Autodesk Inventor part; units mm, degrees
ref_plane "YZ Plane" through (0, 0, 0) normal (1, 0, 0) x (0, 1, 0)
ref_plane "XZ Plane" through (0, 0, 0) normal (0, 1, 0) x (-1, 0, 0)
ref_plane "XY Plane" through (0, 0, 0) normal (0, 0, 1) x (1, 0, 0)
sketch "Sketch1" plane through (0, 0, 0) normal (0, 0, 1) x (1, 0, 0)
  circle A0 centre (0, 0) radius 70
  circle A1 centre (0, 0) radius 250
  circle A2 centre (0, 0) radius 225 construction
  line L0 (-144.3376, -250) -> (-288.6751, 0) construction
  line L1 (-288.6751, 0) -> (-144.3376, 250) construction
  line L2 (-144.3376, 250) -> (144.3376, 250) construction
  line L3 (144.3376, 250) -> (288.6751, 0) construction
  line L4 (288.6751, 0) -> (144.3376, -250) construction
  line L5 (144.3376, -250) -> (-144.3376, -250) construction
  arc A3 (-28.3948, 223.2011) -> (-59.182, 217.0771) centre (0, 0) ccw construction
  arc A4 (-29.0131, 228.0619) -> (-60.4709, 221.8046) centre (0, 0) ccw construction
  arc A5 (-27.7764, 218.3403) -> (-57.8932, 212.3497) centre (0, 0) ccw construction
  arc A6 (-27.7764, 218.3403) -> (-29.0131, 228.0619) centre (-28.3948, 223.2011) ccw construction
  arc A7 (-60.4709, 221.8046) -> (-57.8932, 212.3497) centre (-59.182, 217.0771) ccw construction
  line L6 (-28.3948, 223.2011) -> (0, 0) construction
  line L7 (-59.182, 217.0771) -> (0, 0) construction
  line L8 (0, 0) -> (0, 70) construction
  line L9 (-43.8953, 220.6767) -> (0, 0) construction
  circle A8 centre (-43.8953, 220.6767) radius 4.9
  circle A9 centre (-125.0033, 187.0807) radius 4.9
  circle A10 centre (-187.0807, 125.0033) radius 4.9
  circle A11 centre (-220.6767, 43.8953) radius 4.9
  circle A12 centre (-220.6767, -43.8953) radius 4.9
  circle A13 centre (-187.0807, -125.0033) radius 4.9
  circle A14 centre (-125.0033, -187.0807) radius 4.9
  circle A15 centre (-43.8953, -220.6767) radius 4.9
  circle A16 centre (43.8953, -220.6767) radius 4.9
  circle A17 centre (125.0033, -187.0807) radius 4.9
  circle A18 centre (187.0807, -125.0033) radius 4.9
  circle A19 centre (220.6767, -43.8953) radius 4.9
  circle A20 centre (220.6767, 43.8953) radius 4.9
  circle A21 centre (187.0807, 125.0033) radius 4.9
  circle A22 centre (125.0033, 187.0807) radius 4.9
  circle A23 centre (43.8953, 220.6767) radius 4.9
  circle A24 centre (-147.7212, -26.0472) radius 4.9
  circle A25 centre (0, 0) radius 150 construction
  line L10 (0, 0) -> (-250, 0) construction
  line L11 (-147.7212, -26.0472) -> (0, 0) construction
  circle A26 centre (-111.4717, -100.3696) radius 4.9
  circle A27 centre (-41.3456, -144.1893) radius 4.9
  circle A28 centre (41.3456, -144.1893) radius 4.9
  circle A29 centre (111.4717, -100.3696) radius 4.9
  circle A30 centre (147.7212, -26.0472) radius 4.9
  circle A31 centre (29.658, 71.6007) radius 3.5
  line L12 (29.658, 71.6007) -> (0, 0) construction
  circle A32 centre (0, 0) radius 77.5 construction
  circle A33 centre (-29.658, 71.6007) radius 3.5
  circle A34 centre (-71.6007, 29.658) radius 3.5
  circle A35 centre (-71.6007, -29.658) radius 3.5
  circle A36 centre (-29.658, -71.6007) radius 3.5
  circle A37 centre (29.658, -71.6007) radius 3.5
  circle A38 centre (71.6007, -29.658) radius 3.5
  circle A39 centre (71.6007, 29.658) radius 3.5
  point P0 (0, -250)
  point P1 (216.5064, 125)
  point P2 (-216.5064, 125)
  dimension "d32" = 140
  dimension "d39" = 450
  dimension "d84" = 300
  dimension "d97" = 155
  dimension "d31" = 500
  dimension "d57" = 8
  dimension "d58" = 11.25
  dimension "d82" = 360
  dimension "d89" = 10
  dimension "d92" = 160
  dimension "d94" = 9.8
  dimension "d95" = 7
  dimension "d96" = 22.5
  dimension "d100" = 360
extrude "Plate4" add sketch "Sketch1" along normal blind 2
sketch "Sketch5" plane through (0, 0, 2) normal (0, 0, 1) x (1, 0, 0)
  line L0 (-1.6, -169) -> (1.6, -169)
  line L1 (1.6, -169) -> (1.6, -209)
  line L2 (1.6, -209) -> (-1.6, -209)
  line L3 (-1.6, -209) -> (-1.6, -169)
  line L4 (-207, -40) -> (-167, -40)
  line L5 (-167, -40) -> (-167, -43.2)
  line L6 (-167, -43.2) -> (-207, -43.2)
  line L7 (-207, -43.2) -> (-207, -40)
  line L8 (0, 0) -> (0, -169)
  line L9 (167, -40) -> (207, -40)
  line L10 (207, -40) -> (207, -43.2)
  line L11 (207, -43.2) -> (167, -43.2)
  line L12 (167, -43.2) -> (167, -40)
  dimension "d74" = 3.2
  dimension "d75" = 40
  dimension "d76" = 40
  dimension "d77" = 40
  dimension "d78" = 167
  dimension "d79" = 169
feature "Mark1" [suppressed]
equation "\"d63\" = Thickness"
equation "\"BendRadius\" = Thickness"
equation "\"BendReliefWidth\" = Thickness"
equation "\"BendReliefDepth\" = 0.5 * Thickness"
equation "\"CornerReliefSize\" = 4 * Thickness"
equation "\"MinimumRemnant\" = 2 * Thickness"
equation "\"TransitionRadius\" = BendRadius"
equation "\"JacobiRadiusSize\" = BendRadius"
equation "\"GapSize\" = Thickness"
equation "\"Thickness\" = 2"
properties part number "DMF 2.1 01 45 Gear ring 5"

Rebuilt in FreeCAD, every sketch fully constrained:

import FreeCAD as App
import Part
import Sketcher
from FreeCAD import Vector

doc = App.newDocument("Part")
body = doc.addObject("PartDesign::Body", "Body")

sketch1 = doc.addObject("Sketcher::SketchObject", "Sketch")
body.addObject(sketch1)
sketch1.AttachmentSupport = (doc.XY_Plane, [""])
sketch1.MapMode = "FlatFace"
sketch1.addGeometry(Part.Circle(Vector(0, 0, 0), Vector(0, 0, 1), 250), False)
sketch1.addGeometry(Part.Circle(Vector(-125, -187.1, 0), Vector(0, 0, 1), 4.9), False)
sketch1.addGeometry(Part.Circle(Vector(-187.1, -125, 0), Vector(0, 0, 1), 4.9), False)
sketch1.addGeometry(Part.Circle(Vector(-43.9, -220.7, 0), Vector(0, 0, 1), 4.9), False)
sketch1.addGeometry(Part.Circle(Vector(-41.3, -144.2, 0), Vector(0, 0, 1), 4.9), False)
sketch1.addGeometry(Part.Circle(Vector(-220.7, -43.9, 0), Vector(0, 0, 1), 4.9), False)
sketch1.addGeometry(Part.Circle(Vector(-147.7, -26, 0), Vector(0, 0, 1), 4.9), False)
sketch1.addGeometry(Part.Circle(Vector(-111.5, -100.4, 0), Vector(0, 0, 1), 4.9), False)
sketch1.addGeometry(Part.Circle(Vector(-29.7, -71.6, 0), Vector(0, 0, 1), 3.5), False)
sketch1.addGeometry(Part.Circle(Vector(-71.6, -29.7, 0), Vector(0, 0, 1), 3.5), False)
sketch1.addGeometry(Part.Circle(Vector(43.9, -220.7, 0), Vector(0, 0, 1), 4.9), False)
sketch1.addGeometry(Part.Circle(Vector(41.3, -144.2, 0), Vector(0, 0, 1), 4.9), False)
sketch1.addGeometry(Part.Circle(Vector(125, -187.1, 0), Vector(0, 0, 1), 4.9), False)
sketch1.addGeometry(Part.Circle(Vector(187.1, -125, 0), Vector(0, 0, 1), 4.9), False)
sketch1.addGeometry(Part.Circle(Vector(29.7, -71.6, 0), Vector(0, 0, 1), 3.5), False)
sketch1.addGeometry(Part.Circle(Vector(111.5, -100.4, 0), Vector(0, 0, 1), 4.9), False)
sketch1.addGeometry(Part.Circle(Vector(71.6, -29.7, 0), Vector(0, 0, 1), 3.5), False)
sketch1.addGeometry(Part.Circle(Vector(147.7, -26, 0), Vector(0, 0, 1), 4.9), False)
sketch1.addGeometry(Part.Circle(Vector(220.7, -43.9, 0), Vector(0, 0, 1), 4.9), False)
sketch1.addGeometry(Part.Circle(Vector(-220.7, 43.9, 0), Vector(0, 0, 1), 4.9), False)
sketch1.addGeometry(Part.Circle(Vector(-71.6, 29.7, 0), Vector(0, 0, 1), 3.5), False)
sketch1.addGeometry(Part.Circle(Vector(-29.7, 71.6, 0), Vector(0, 0, 1), 3.5), False)
sketch1.addGeometry(Part.Circle(Vector(-187.1, 125, 0), Vector(0, 0, 1), 4.9), False)
sketch1.addGeometry(Part.Circle(Vector(-125, 187.1, 0), Vector(0, 0, 1), 4.9), False)
sketch1.addGeometry(Part.Circle(Vector(-43.9, 220.7, 0), Vector(0, 0, 1), 4.9), False)
sketch1.addGeometry(Part.Circle(Vector(0, 0, 0), Vector(0, 0, 1), 70), False)
sketch1.addGeometry(Part.Circle(Vector(71.6, 29.7, 0), Vector(0, 0, 1), 3.5), False)
sketch1.addGeometry(Part.Circle(Vector(29.7, 71.6, 0), Vector(0, 0, 1), 3.5), False)
sketch1.addGeometry(Part.Circle(Vector(220.7, 43.9, 0), Vector(0, 0, 1), 4.9), False)
sketch1.addGeometry(Part.Circle(Vector(43.9, 220.7, 0), Vector(0, 0, 1), 4.9), False)
sketch1.addGeometry(Part.Circle(Vector(187.1, 125, 0), Vector(0, 0, 1), 4.9), False)
sketch1.addGeometry(Part.Circle(Vector(125, 187.1, 0), Vector(0, 0, 1), 4.9), False)
sketch1.addConstraint(Sketcher.Constraint("Coincident", 0, 3, -1, 1))
sketch1.addConstraint(Sketcher.Constraint("Coincident", 25, 3, -1, 1))
sketch1.addConstraint(Sketcher.Constraint("Equal", 1, 2))
sketch1.addConstraint(Sketcher.Constraint("Equal", 2, 3))
sketch1.addConstraint(Sketcher.Constraint("Equal", 3, 4))
sketch1.addConstraint(Sketcher.Constraint("Equal", 4, 5))
sketch1.addConstraint(Sketcher.Constraint("Equal", 5, 6))
sketch1.addConstraint(Sketcher.Constraint("Equal", 6, 7))
sketch1.addConstraint(Sketcher.Constraint("Equal", 8, 9))
sketch1.addConstraint(Sketcher.Constraint("Equal", 7, 10))
sketch1.addConstraint(Sketcher.Constraint("Equal", 10, 11))
sketch1.addConstraint(Sketcher.Constraint("Equal", 11, 12))
sketch1.addConstraint(Sketcher.Constraint("Equal", 12, 13))
sketch1.addConstraint(Sketcher.Constraint("Equal", 9, 14))
sketch1.addConstraint(Sketcher.Constraint("Equal", 13, 15))
sketch1.addConstraint(Sketcher.Constraint("Equal", 14, 16))
sketch1.addConstraint(Sketcher.Constraint("Equal", 15, 17))
sketch1.addConstraint(Sketcher.Constraint("Equal", 17, 18))
sketch1.addConstraint(Sketcher.Constraint("Equal", 18, 19))
sketch1.addConstraint(Sketcher.Constraint("Equal", 16, 20))
sketch1.addConstraint(Sketcher.Constraint("Equal", 20, 21))
sketch1.addConstraint(Sketcher.Constraint("Equal", 19, 22))
sketch1.addConstraint(Sketcher.Constraint("Equal", 22, 23))
sketch1.addConstraint(Sketcher.Constraint("Equal", 23, 24))
sketch1.addConstraint(Sketcher.Constraint("Equal", 21, 26))
sketch1.addConstraint(Sketcher.Constraint("Equal", 26, 27))
sketch1.addConstraint(Sketcher.Constraint("Equal", 24, 28))
sketch1.addConstraint(Sketcher.Constraint("Equal", 28, 29))
sketch1.addConstraint(Sketcher.Constraint("Equal", 29, 30))
sketch1.addConstraint(Sketcher.Constraint("Equal", 30, 31))
sketch1.addConstraint(Sketcher.Constraint("Symmetric", 18, 3, 19, 3, -1, 1))
sketch1.addConstraint(Sketcher.Constraint("Symmetric", 16, 3, 20, 3, -1, 1))
sketch1.addConstraint(Sketcher.Constraint("Symmetric", 14, 3, 21, 3, -1, 1))
sketch1.addConstraint(Sketcher.Constraint("Symmetric", 13, 3, 22, 3, -1, 1))
sketch1.addConstraint(Sketcher.Constraint("Symmetric", 12, 3, 23, 3, -1, 1))
sketch1.addConstraint(Sketcher.Constraint("Symmetric", 10, 3, 24, 3, -1, 1))
sketch1.addConstraint(Sketcher.Constraint("Symmetric", 9, 3, 26, 3, -1, 1))
sketch1.addConstraint(Sketcher.Constraint("Symmetric", 8, 3, 27, 3, -1, 1))
sketch1.addConstraint(Sketcher.Constraint("Symmetric", 5, 3, 28, 3, -1, 1))
sketch1.addConstraint(Sketcher.Constraint("Symmetric", 3, 3, 29, 3, -1, 1))
sketch1.addConstraint(Sketcher.Constraint("Symmetric", 2, 3, 30, 3, -1, 1))
sketch1.addConstraint(Sketcher.Constraint("Symmetric", 1, 3, 31, 3, -1, 1))
sketch1.addConstraint(Sketcher.Constraint("Symmetric", 3, 3, 10, 3, -2))
sketch1.addConstraint(Sketcher.Constraint("Symmetric", 4, 3, 11, 3, -2))
sketch1.addConstraint(Sketcher.Constraint("Symmetric", 1, 3, 12, 3, -2))
sketch1.addConstraint(Sketcher.Constraint("Symmetric", 2, 3, 13, 3, -2))
sketch1.addConstraint(Sketcher.Constraint("Symmetric", 8, 3, 14, 3, -2))
sketch1.addConstraint(Sketcher.Constraint("Symmetric", 7, 3, 15, 3, -2))
sketch1.addConstraint(Sketcher.Constraint("Symmetric", 9, 3, 16, 3, -2))
sketch1.addConstraint(Sketcher.Constraint("Symmetric", 6, 3, 17, 3, -2))
sketch1.addConstraint(Sketcher.Constraint("Symmetric", 5, 3, 18, 3, -2))
sketch1.addConstraint(Sketcher.Constraint("Diameter", 0, 500.0))
sketch1.addConstraint(Sketcher.Constraint("Diameter", 8, 7.0))
sketch1.addConstraint(Sketcher.Constraint("Diameter", 25, 140.0))
sketch1.addConstraint(Sketcher.Constraint("Diameter", 1, 9.8))
sketch1.addConstraint(Sketcher.Constraint("DistanceY", 12, 3, 8, 3, 115.48))
sketch1.addConstraint(Sketcher.Constraint("DistanceX", 22, 3, 20, 3, 115.48))
sketch1.addConstraint(Sketcher.Constraint("DistanceX", 8, 3, -1, 1, 29.658))
sketch1.addConstraint(Sketcher.Constraint("DistanceY", 9, 3, -1, 1, 29.658))
sketch1.addConstraint(Sketcher.Constraint("DistanceX", 1, 3, 3, 3, 81.108))
sketch1.addConstraint(Sketcher.Constraint("DistanceY", 3, 3, 1, 3, 33.596))
sketch1.addConstraint(Sketcher.Constraint("DistanceX", 2, 3, 4, 3, 145.735))
sketch1.addConstraint(Sketcher.Constraint("DistanceY", 4, 3, 2, 3, 19.186))
sketch1.addConstraint(Sketcher.Constraint("DistanceX", 5, 3, 2, 3, 33.596))
sketch1.addConstraint(Sketcher.Constraint("DistanceY", 2, 3, 5, 3, 81.108))
sketch1.addConstraint(Sketcher.Constraint("DistanceY", 5, 3, 6, 3, 17.848))
sketch1.addConstraint(Sketcher.Constraint("DistanceX", 6, 3, 1, 3, 22.718))
sketch1.addConstraint(Sketcher.Constraint("DistanceX", 2, 3, 7, 3, 75.609))
sketch1.addConstraint(Sketcher.Constraint("DistanceY", 1, 3, 7, 3, 86.711))
sketch1.addConstraint(Sketcher.Constraint("DistanceX", 4, 3, 10, 3, 85.241))
sketch1.addConstraint(Sketcher.Constraint("DistanceY", 7, 3, 19, 3, 144.265))
sketch1.addConstraint(Sketcher.Constraint("DistanceX", 1, 3, -1, 1, 125.0033))
sketch1.addConstraint(Sketcher.Constraint("DistanceY", 1, 3, -1, 1, 187.0807))
pad1 = doc.addObject("PartDesign::Pad", "Pad")
body.addObject(pad1)
pad1.Profile = sketch1
pad1.Length = 2

doc.recompute()
